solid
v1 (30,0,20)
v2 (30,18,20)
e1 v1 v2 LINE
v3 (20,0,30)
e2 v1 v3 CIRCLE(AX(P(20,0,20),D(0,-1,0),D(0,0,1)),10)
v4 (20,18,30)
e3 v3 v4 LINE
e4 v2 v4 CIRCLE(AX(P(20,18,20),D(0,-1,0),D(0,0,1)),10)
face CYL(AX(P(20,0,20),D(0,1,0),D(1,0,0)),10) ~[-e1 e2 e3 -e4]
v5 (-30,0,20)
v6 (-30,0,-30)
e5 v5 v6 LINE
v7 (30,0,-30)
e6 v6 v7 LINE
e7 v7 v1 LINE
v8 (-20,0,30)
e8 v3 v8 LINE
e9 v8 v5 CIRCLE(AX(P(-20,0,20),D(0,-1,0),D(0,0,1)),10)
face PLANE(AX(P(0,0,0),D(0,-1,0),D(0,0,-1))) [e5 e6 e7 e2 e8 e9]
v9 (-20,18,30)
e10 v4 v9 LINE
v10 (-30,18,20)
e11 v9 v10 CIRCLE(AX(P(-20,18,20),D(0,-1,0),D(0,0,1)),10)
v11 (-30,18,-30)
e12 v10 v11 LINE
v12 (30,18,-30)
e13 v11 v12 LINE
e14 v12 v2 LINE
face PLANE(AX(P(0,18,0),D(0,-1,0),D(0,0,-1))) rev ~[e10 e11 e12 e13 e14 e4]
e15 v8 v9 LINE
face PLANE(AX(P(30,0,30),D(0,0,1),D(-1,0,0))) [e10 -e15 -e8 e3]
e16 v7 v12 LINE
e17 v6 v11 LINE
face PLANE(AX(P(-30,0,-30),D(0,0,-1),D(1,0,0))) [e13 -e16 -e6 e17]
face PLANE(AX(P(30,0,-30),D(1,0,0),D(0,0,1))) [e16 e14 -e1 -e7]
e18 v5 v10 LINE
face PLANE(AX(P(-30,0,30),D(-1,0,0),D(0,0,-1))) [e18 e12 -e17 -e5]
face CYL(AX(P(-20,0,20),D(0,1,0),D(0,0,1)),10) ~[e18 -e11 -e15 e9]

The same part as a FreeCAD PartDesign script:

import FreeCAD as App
import Part
import Sketcher
from FreeCAD import Vector


def edges_at(feature, points):
    """Names of the edges that pass closest to the given points."""
    edges = feature.Shape.Edges
    near = lambda p: min(range(len(edges)), key=lambda i: edges[i].distToShape(Part.Vertex(*p))[0])
    return sorted({f"Edge{near(p) + 1}" for p in points})


def add_polygon(sketch, points):
    """Adds a closed chain of lines whose ends are joined by coincident constraints."""
    first, n = sketch.GeometryCount, len(points)
    for a, b in zip(points, points[1:] + points[:1]):
        sketch.addGeometry(Part.LineSegment(App.Vector(*a, 0), App.Vector(*b, 0)), False)
    for i in range(n):
        sketch.addConstraint(Sketcher.Constraint("Coincident", first + i, 2, first + (i + 1) % n, 1))

doc = App.newDocument("Part")
body = doc.addObject("PartDesign::Body", "Body")

# Sketch on XZ plane
sketch1 = body.newObject("Sketcher::SketchObject", "Sketch")
sketch1.AttachmentSupport = (doc.getObject("XZ_Plane"), [""])
sketch1.MapMode = "FlatFace"
add_polygon(sketch1, [(-30, -30), (30, -30), (30, 30), (-30, 30)])  # lines 0-3
sketch1.addConstraint(Sketcher.Constraint("Horizontal", 0))
sketch1.addConstraint(Sketcher.Constraint("Vertical", 1))
sketch1.addConstraint(Sketcher.Constraint("Horizontal", 2))
sketch1.addConstraint(Sketcher.Constraint("Vertical", 3))
sketch1.addConstraint(Sketcher.Constraint("Symmetric", 0, 2, 2, 2, -1, 1))
sketch1.addConstraint(Sketcher.Constraint("Equal", 2, 1))
sketch1.addConstraint(Sketcher.Constraint("DistanceX", 0, 1, 0, 2, 60.0))
pad1 = body.newObject("PartDesign::Pad", "Pad")
pad1.Profile = sketch1
pad1.Length = 18
pad1.Reversed = True
doc.recompute()

fillet = body.newObject("PartDesign::Fillet", "Fillet")
fillet.Base = (pad1, edges_at(pad1, [(-30, 9, 30), (30, 9, 30)]))
fillet.Radius = 10

doc.recompute()
